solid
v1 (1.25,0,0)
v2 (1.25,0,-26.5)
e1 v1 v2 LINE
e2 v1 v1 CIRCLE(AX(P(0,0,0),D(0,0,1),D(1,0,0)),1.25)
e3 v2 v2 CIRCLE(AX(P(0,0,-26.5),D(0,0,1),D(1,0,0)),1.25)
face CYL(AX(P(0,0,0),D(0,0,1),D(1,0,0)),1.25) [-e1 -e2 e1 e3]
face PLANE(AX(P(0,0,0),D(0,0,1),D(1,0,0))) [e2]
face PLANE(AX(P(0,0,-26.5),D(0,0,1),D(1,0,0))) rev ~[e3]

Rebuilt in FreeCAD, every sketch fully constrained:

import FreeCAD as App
import Part
import Sketcher
from FreeCAD import Vector
Q = App.Units.Quantity

doc = App.newDocument("Part")
params = doc.addObject("Spreadsheet::Sheet", "Params")
for row, (alias, value) in enumerate([
    ("sketch1_diameter", "2.5 mm"),
    ("pad1_length", "26.5 mm"),
], start=1):
    params.set(f"A{row}", alias)
    params.set(f"B{row}", "=" + value)
    params.setAlias(f"B{row}", alias)

body = doc.addObject("PartDesign::Body", "Body")

sketch1 = body.newObject("Sketcher::SketchObject", "Sketch")
sketch1.AttachmentSupport = (doc.getObject("XY_Plane"), [""])
sketch1.MapMode = "FlatFace"
sketch1.addGeometry(Part.Circle(Vector(0, 0, 0), Vector(0, 0, 1), 1.2), False)
sketch1.addConstraint(Sketcher.Constraint("Coincident", 0, 3, -1, 1))
sketch1.addConstraint(Sketcher.Constraint("Diameter", 0, Q("2.5 mm")))
sketch1.setExpression("Constraints[1]", "Params.sketch1_diameter")
pad1 = body.newObject("PartDesign::Pad", "Pad")
pad1.Profile = sketch1
pad1.setExpression("Length", "Params.pad1_length")
pad1.Reversed = True

doc.recompute()
